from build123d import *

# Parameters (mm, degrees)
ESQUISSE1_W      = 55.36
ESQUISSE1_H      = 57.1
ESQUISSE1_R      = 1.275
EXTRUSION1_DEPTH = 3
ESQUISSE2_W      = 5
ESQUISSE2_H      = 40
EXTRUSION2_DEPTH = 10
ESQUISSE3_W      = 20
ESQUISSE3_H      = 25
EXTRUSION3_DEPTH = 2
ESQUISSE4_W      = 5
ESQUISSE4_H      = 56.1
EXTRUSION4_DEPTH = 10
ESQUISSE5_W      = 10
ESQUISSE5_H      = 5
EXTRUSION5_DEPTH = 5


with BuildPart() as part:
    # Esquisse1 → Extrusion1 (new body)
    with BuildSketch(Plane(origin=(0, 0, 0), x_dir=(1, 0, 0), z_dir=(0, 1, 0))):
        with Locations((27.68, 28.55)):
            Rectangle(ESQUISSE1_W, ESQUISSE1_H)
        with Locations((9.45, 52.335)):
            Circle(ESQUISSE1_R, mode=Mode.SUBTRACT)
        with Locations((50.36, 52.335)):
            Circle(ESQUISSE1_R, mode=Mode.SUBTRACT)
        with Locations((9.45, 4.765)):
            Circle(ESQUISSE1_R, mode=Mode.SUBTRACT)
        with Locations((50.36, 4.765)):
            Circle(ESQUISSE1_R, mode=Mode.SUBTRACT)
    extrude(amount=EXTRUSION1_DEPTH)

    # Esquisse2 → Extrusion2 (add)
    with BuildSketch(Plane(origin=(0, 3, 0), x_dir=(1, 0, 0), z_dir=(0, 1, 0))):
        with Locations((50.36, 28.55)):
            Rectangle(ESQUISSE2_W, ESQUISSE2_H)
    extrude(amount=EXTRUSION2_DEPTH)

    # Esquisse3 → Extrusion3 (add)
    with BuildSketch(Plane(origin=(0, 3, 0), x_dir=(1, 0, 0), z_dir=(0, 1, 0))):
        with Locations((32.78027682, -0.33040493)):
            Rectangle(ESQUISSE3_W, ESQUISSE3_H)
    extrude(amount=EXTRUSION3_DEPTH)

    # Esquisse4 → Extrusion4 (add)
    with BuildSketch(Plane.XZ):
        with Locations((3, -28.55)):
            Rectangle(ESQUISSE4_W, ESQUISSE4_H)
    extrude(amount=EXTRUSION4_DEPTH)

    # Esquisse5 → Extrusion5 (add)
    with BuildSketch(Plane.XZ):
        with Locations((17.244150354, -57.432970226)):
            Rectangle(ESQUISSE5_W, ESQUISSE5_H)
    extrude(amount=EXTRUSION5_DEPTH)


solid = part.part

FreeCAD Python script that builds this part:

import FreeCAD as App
import Part
import Sketcher
from FreeCAD import Vector

doc = App.newDocument("Part")
body = doc.addObject("PartDesign::Body", "Body")

# Sketch on XZ plane
sketch1 = body.newObject("Sketcher::SketchObject", "Sketch")
sketch1.AttachmentSupport = (doc.getObject("XZ_Plane"), [""])
sketch1.MapMode = "FlatFace"
sketch1.addGeometry(Part.LineSegment(Vector(0, -57.1, 0), Vector(0, 0, 0)), False)
sketch1.addGeometry(Part.LineSegment(Vector(0, 0, 0), Vector(55.4, 0, 0)), False)
sketch1.addGeometry(Part.LineSegment(Vector(55.4, 0, 0), Vector(55.4, -57.1, 0)), False)
sketch1.addGeometry(Part.LineSegment(Vector(55.4, -57.1, 0), Vector(0, -57.1, 0)), False)
sketch1.addGeometry(Part.Circle(Vector(9.4, -4.8, 0), Vector(0, 0, 1), 1.3), False)
sketch1.addGeometry(Part.Circle(Vector(50.4, -4.8, 0), Vector(0, 0, 1), 1.3), False)
sketch1.addGeometry(Part.Circle(Vector(9.4, -52.3, 0), Vector(0, 0, 1), 1.3), False)
sketch1.addGeometry(Part.Circle(Vector(50.4, -52.3, 0), Vector(0, 0, 1), 1.3), False)
sketch1.addConstraint(Sketcher.Constraint("Coincident", 0, 2, 1, 1))
sketch1.addConstraint(Sketcher.Constraint("Coincident", 1, 2, 2, 1))
sketch1.addConstraint(Sketcher.Constraint("Coincident", 2, 2, 3, 1))
sketch1.addConstraint(Sketcher.Constraint("Coincident", 3, 2, 0, 1))
sketch1.addConstraint(Sketcher.Constraint("Vertical", 0))
sketch1.addConstraint(Sketcher.Constraint("Horizontal", 1))
sketch1.addConstraint(Sketcher.Constraint("Vertical", 2))
sketch1.addConstraint(Sketcher.Constraint("Horizontal", 3))
sketch1.addConstraint(Sketcher.Constraint("Coincident", 0, 2, -1, 1))
sketch1.addConstraint(Sketcher.Constraint("Equal", 4, 5))
sketch1.addConstraint(Sketcher.Constraint("Equal", 5, 6))
sketch1.addConstraint(Sketcher.Constraint("Equal", 6, 7))
sketch1.addConstraint(Sketcher.Constraint("Horizontal", 4, 3, 5, 3))
sketch1.addConstraint(Sketcher.Constraint("Horizontal", 6, 3, 7, 3))
sketch1.addConstraint(Sketcher.Constraint("Vertical", 4, 3, 6, 3))
sketch1.addConstraint(Sketcher.Constraint("Vertical", 5, 3, 7, 3))
sketch1.addConstraint(Sketcher.Constraint("Diameter", 4, 2.55))
sketch1.addConstraint(Sketcher.Constraint("DistanceY", 0, 1, 0, 2, 57.1))
sketch1.addConstraint(Sketcher.Constraint("DistanceX", 5, 3, 1, 2, 5.0))
sketch1.addConstraint(Sketcher.Constraint("DistanceX", 1, 1, 1, 2, 55.36))
sketch1.addConstraint(Sketcher.Constraint("DistanceX", -1, 1, 4, 3, 9.45))
sketch1.addConstraint(Sketcher.Constraint("DistanceY", 6, 3, 4, 3, 47.57))
sketch1.addConstraint(Sketcher.Constraint("DistanceY", 4, 3, -1, 1, 4.765))
pad1 = body.newObject("PartDesign::Pad", "Pad")
pad1.Profile = sketch1
pad1.Length = 3
pad1.Reversed = True

# Sketch on XZ plane
sketch2 = body.newObject("Sketcher::SketchObject", "Sketch001")
sketch2.AttachmentSupport = (doc.getObject("XZ_Plane"), [""])
sketch2.MapMode = "FlatFace"
sketch2.AttachmentOffset = App.Placement(Vector(0, 0, -3), App.Rotation())
sketch2.addGeometry(Part.LineSegment(Vector(48, -49, 0), Vector(48, -9, 0)), False)
sketch2.addGeometry(Part.LineSegment(Vector(48, -9, 0), Vector(53, -9, 0)), False)
sketch2.addGeometry(Part.LineSegment(Vector(53, -9, 0), Vector(53, -49, 0)), False)
sketch2.addGeometry(Part.LineSegment(Vector(53, -49, 0), Vector(48, -49, 0)), False)
sketch2.addConstraint(Sketcher.Constraint("Coincident", 0, 2, 1, 1))
sketch2.addConstraint(Sketcher.Constraint("Coincident", 1, 2, 2, 1))
sketch2.addConstraint(Sketcher.Constraint("Coincident", 2, 2, 3, 1))
sketch2.addConstraint(Sketcher.Constraint("Coincident", 3, 2, 0, 1))
sketch2.addConstraint(Sketcher.Constraint("Vertical", 0))
sketch2.addConstraint(Sketcher.Constraint("Horizontal", 1))
sketch2.addConstraint(Sketcher.Constraint("Vertical", 2))
sketch2.addConstraint(Sketcher.Constraint("Horizontal", 3))
sketch2.addConstraint(Sketcher.Constraint("DistanceX", 1, 1, 1, 2, 5.0))
sketch2.addConstraint(Sketcher.Constraint("DistanceY", 0, 1, 0, 2, 40.0))
sketch2.addConstraint(Sketcher.Constraint("DistanceX", -1, 1, 0, 2, 47.86))
sketch2.addConstraint(Sketcher.Constraint("DistanceY", 0, 2, -1, 1, 8.55))
pad2 = body.newObject("PartDesign::Pad", "Pad001")
pad2.Profile = sketch2
pad2.Length = 10
pad2.Reversed = True

# Sketch on XZ plane
sketch3 = body.newObject("Sketcher::SketchObject", "Sketch002")
sketch3.AttachmentSupport = (doc.getObject("XZ_Plane"), [""])
sketch3.MapMode = "FlatFace"
sketch3.AttachmentOffset = App.Placement(Vector(0, 0, -3), App.Rotation())
sketch3.addGeometry(Part.LineSegment(Vector(23, -12, 0), Vector(23, 13, 0)), False)
sketch3.addGeometry(Part.LineSegment(Vector(23, 13, 0), Vector(43, 13, 0)), False)
sketch3.addGeometry(Part.LineSegment(Vector(43, 13, 0), Vector(43, -12, 0)), False)
sketch3.addGeometry(Part.LineSegment(Vector(43, -12, 0), Vector(23, -12, 0)), False)
sketch3.addConstraint(Sketcher.Constraint("Coincident", 0, 2, 1, 1))
sketch3.addConstraint(Sketcher.Constraint("Coincident", 1, 2, 2, 1))
sketch3.addConstraint(Sketcher.Constraint("Coincident", 2, 2, 3, 1))
sketch3.addConstraint(Sketcher.Constraint("Coincident", 3, 2, 0, 1))
sketch3.addConstraint(Sketcher.Constraint("Vertical", 0))
sketch3.addConstraint(Sketcher.Constraint("Horizontal", 1))
sketch3.addConstraint(Sketcher.Constraint("Vertical", 2))
sketch3.addConstraint(Sketcher.Constraint("Horizontal", 3))
sketch3.addConstraint(Sketcher.Constraint("DistanceX", 1, 1, 1, 2, 20.0))
sketch3.addConstraint(Sketcher.Constraint("DistanceY", 0, 1, 0, 2, 25.0))
sketch3.addConstraint(Sketcher.Constraint("DistanceX", -1, 1, 0, 2, 22.780277))
sketch3.addConstraint(Sketcher.Constraint("DistanceY", -1, 1, 0, 2, 12.830405))
pad3 = body.newObject("PartDesign::Pad", "Pad002")
pad3.Profile = sketch3
pad3.Length = 2
pad3.Reversed = True

# Sketch on XZ plane
sketch4 = body.newObject("Sketcher::SketchObject", "Sketch003")
sketch4.AttachmentSupport = (doc.getObject("XZ_Plane"), [""])
sketch4.MapMode = "FlatFace"
sketch4.addGeometry(Part.LineSegment(Vector(0, 0, 0), Vector(0, -57, 0)), False)
sketch4.addGeometry(Part.LineSegment(Vector(0, -57, 0), Vector(6, -57, 0)), False)
sketch4.addGeometry(Part.LineSegment(Vector(6, -57, 0), Vector(6, 0, 0)), False)
sketch4.addGeometry(Part.LineSegment(Vector(6, 0, 0), Vector(0, 0, 0)), False)
sketch4.addConstraint(Sketcher.Constraint("Coincident", 0, 2, 1, 1))
sketch4.addConstraint(Sketcher.Constraint("Coincident", 1, 2, 2, 1))
sketch4.addConstraint(Sketcher.Constraint("Coincident", 2, 2, 3, 1))
sketch4.addConstraint(Sketcher.Constraint("Coincident", 3, 2, 0, 1))
sketch4.addConstraint(Sketcher.Constraint("Vertical", 0))
sketch4.addConstraint(Sketcher.Constraint("Horizontal", 1))
sketch4.addConstraint(Sketcher.Constraint("Vertical", 2))
sketch4.addConstraint(Sketcher.Constraint("Horizontal", 3))
sketch4.addConstraint(Sketcher.Constraint("DistanceX", 1, 1, 1, 2, 5.0))
sketch4.addConstraint(Sketcher.Constraint("DistanceY", 0, 2, 0, 1, 56.1))
sketch4.addConstraint(Sketcher.Constraint("DistanceX", -1, 1, 0, 2, 0.5))
sketch4.addConstraint(Sketcher.Constraint("DistanceY", 0, 2, -1, 1, 56.6))
pad4 = body.newObject("PartDesign::Pad", "Pad003")
pad4.Profile = sketch4
pad4.Length = 10

# Sketch on XZ plane
sketch5 = body.newObject("Sketcher::SketchObject", "Sketch004")
sketch5.AttachmentSupport = (doc.getObject("XZ_Plane"), [""])
sketch5.MapMode = "FlatFace"
sketch5.addGeometry(Part.LineSegment(Vector(12, -55, 0), Vector(12, -60, 0)), False)
sketch5.addGeometry(Part.LineSegment(Vector(12, -60, 0), Vector(22, -60, 0)), False)
sketch5.addGeometry(Part.LineSegment(Vector(22, -60, 0), Vector(22, -55, 0)), False)
sketch5.addGeometry(Part.LineSegment(Vector(22, -55, 0), Vector(12, -55, 0)), False)
sketch5.addConstraint(Sketcher.Constraint("Coincident", 0, 2, 1, 1))
sketch5.addConstraint(Sketcher.Constraint("Coincident", 1, 2, 2, 1))
sketch5.addConstraint(Sketcher.Constraint("Coincident", 2, 2, 3, 1))
sketch5.addConstraint(Sketcher.Constraint("Coincident", 3, 2, 0, 1))
sketch5.addConstraint(Sketcher.Constraint("Vertical", 0))
sketch5.addConstraint(Sketcher.Constraint("Horizontal", 1))
sketch5.addConstraint(Sketcher.Constraint("Vertical", 2))
sketch5.addConstraint(Sketcher.Constraint("Horizontal", 3))
sketch5.addConstraint(Sketcher.Constraint("DistanceX", 1, 1, 1, 2, 10.0))
sketch5.addConstraint(Sketcher.Constraint("DistanceY", 0, 2, 0, 1, 5.0))
sketch5.addConstraint(Sketcher.Constraint("DistanceX", -1, 1, 0, 2, 12.24415))
sketch5.addConstraint(Sketcher.Constraint("DistanceY", 0, 2, -1, 1, 59.93297))
pad5 = body.newObject("PartDesign::Pad", "Pad004")
pad5.Profile = sketch5
pad5.Length = 5

doc.recompute()
